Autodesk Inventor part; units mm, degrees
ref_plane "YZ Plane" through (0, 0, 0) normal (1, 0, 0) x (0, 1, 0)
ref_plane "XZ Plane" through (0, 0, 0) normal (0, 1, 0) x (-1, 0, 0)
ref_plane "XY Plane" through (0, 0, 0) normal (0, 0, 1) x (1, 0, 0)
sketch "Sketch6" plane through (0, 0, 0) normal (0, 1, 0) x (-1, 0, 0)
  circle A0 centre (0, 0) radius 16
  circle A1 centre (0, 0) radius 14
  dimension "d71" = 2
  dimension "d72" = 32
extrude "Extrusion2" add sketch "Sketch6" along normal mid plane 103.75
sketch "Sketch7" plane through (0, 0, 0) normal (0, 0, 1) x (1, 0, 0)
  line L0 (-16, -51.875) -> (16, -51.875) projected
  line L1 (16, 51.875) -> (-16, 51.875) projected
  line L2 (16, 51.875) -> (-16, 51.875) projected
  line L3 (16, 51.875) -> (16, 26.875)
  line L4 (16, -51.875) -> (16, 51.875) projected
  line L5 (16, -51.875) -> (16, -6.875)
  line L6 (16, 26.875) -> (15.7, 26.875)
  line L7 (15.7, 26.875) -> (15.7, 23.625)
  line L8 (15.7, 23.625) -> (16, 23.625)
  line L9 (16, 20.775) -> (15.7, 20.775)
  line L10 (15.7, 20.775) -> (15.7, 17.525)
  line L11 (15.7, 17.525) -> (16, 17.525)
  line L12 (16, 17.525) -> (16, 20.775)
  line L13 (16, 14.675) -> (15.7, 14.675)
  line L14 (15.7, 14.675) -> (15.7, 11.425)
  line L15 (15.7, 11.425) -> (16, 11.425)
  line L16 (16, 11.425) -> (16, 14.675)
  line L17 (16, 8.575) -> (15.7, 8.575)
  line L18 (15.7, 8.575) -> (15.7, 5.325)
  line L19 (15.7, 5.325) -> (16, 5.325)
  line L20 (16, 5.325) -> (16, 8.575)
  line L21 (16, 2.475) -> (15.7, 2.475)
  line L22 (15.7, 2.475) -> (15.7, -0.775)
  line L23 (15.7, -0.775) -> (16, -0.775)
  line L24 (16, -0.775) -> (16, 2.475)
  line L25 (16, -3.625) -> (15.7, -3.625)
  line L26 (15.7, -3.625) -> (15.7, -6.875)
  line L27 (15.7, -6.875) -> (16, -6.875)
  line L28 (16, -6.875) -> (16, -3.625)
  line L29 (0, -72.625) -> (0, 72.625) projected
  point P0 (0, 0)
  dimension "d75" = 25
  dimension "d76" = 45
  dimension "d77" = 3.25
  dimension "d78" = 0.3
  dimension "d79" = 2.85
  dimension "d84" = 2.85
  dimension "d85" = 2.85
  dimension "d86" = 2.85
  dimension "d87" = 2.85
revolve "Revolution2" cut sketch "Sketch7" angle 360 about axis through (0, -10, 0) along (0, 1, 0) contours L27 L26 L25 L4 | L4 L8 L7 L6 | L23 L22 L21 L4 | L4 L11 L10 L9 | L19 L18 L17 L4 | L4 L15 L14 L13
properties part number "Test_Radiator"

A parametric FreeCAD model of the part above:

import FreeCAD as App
import Part
import Sketcher
Q = App.Units.Quantity


def add_polygon(sketch, points):
    """Adds a closed chain of lines whose ends are joined by coincident constraints."""
    first, n = sketch.GeometryCount, len(points)
    for a, b in zip(points, points[1:] + points[:1]):
        sketch.addGeometry(Part.LineSegment(App.Vector(*a, 0), App.Vector(*b, 0)), False)
    for i in range(n):
        sketch.addConstraint(Sketcher.Constraint("Coincident", first + i, 2, first + (i + 1) % n, 1))

doc = App.newDocument("Part")
params = doc.addObject("Spreadsheet::Sheet", "Params")
for row, (alias, value) in enumerate([
    ("sketch1_diameter", "32 mm"),
    ("sketch1_diameter2", "28 mm"),
    ("pad1_length", "103.75 mm"),
    ("sketch2_width", "0.3 mm"),
    ("sketch2_height", "3.25 mm"),
    ("groove_angle", "360 deg"),
], start=1):
    params.set(f"A{row}", alias)
    params.set(f"B{row}", "=" + value)
    params.setAlias(f"B{row}", alias)

body = doc.addObject("PartDesign::Body", "Body")

# Sketch on XZ plane
sketch1 = doc.addObject("Sketcher::SketchObject", "Sketch")
body.addObject(sketch1)
sketch1.AttachmentSupport = (doc.XZ_Plane, [""])
sketch1.MapMode = "FlatFace"
sketch1.addGeometry([
    Part.Circle(App.Vector(0, 0, 0), App.Vector(0, 0, 1), 16),
    Part.Circle(App.Vector(0, 0, 0), App.Vector(0, 0, 1), 14),
], False)
sketch1.addConstraint([
    Sketcher.Constraint("Coincident", 0, 3, -1, 1),
    Sketcher.Constraint("Coincident", 1, 3, -1, 1),
    Sketcher.Constraint("Diameter", 0, Q("32 mm")),
    Sketcher.Constraint("Diameter", 1, Q("28 mm")),
])
sketch1.setExpression("Constraints[2]", "Params.sketch1_diameter")
sketch1.setExpression("Constraints[3]", "Params.sketch1_diameter2")
pad1 = doc.addObject("PartDesign::Pad", "Pad")
body.addObject(pad1)
pad1.Profile = sketch1
pad1.setExpression("Length", "Params.pad1_length")
pad1.Midplane = True

# Sketch on XY plane
sketch2 = doc.addObject("Sketcher::SketchObject", "Sketch001")
body.addObject(sketch2)
sketch2.AttachmentSupport = (doc.XY_Plane, [""])
sketch2.MapMode = "FlatFace"
add_polygon(sketch2, [(15.7, -6.88), (16, -6.88), (16, -3.62), (15.7, -3.62)])  # lines 0-3
add_polygon(sketch2, [(16, 23.62), (16, 26.88), (15.7, 26.88), (15.7, 23.62)])  # lines 4-7
add_polygon(sketch2, [(15.7, -0.78), (16, -0.78), (16, 2.48), (15.7, 2.48)])  # lines 8-11
add_polygon(sketch2, [(16, 17.52), (16, 20.77), (15.7, 20.77), (15.7, 17.52)])  # lines 12-15
add_polygon(sketch2, [(15.7, 5.33), (16, 5.33), (16, 8.57), (15.7, 8.57)])  # lines 16-19
add_polygon(sketch2, [(16, 11.43), (16, 14.68), (15.7, 14.68), (15.7, 11.43)])  # lines 20-23
sketch2.addConstraint([
    Sketcher.Constraint("Horizontal", 0),
    Sketcher.Constraint("Vertical", 1),
    Sketcher.Constraint("Horizontal", 2),
    Sketcher.Constraint("Vertical", 3),
    Sketcher.Constraint("Vertical", 4),
    Sketcher.Constraint("Horizontal", 5),
    Sketcher.Constraint("Vertical", 6),
    Sketcher.Constraint("Horizontal", 7),
    Sketcher.Constraint("Horizontal", 8),
    Sketcher.Constraint("Vertical", 9),
    Sketcher.Constraint("Horizontal", 10),
    Sketcher.Constraint("Vertical", 11),
    Sketcher.Constraint("Vertical", 12),
    Sketcher.Constraint("Horizontal", 13),
    Sketcher.Constraint("Vertical", 14),
    Sketcher.Constraint("Horizontal", 15),
    Sketcher.Constraint("Horizontal", 16),
    Sketcher.Constraint("Vertical", 17),
    Sketcher.Constraint("Horizontal", 18),
    Sketcher.Constraint("Vertical", 19),
    Sketcher.Constraint("Vertical", 20),
    Sketcher.Constraint("Horizontal", 21),
    Sketcher.Constraint("Vertical", 22),
    Sketcher.Constraint("Horizontal", 23),
    Sketcher.Constraint("Vertical", 1, 2, 4, 2),
    Sketcher.Constraint("Vertical", 3, 2, 5, 2),
    Sketcher.Constraint("Vertical", 7, 2, 8, 2),
    Sketcher.Constraint("Vertical", 6, 2, 10, 2),
    Sketcher.Constraint("Vertical", 9, 2, 12, 2),
    Sketcher.Constraint("Vertical", 11, 2, 13, 2),
    Sketcher.Constraint("Vertical", 15, 2, 16, 2),
    Sketcher.Constraint("Vertical", 14, 2, 18, 2),
    Sketcher.Constraint("Vertical", 17, 2, 20, 2),
    Sketcher.Constraint("Vertical", 19, 2, 21, 2),
    Sketcher.Constraint("Equal", 3, 4),
    Sketcher.Constraint("Equal", 6, 9),
    Sketcher.Constraint("Equal", 11, 12),
    Sketcher.Constraint("Equal", 14, 17),
    Sketcher.Constraint("Equal", 19, 20),
    Sketcher.Constraint("DistanceX", 0, 1, 0, 2, Q("0.3 mm")),
    Sketcher.Constraint("DistanceY", 1, 1, 1, 2, Q("3.25 mm")),
    Sketcher.Constraint("DistanceY", 1, 2, 8, 2, Q("2.85 mm")),
    Sketcher.Constraint("DistanceY", 12, 2, 7, 2, Q("2.85 mm")),
    Sketcher.Constraint("DistanceY", 9, 2, 16, 2, Q("2.85 mm")),
    Sketcher.Constraint("DistanceY", 20, 2, 15, 2, Q("2.85 mm")),
    Sketcher.Constraint("DistanceY", 18, 2, 22, 2, Q("2.85 mm")),
    Sketcher.Constraint("DistanceX", -1, 1, 0, 2, Q("16 mm")),
    Sketcher.Constraint("DistanceY", 0, 2, -1, 1, Q("6.875 mm")),
])
sketch2.setExpression("Constraints[63]", "Params.sketch2_width")
sketch2.setExpression("Constraints[64]", "Params.sketch2_height")
groove = doc.addObject("PartDesign::Groove", "Groove")
body.addObject(groove)
groove.Profile = sketch2
groove.ReferenceAxis = (sketch2, ["V_Axis"])
groove.setExpression("Angle", "Params.groove_angle")

doc.recompute()
